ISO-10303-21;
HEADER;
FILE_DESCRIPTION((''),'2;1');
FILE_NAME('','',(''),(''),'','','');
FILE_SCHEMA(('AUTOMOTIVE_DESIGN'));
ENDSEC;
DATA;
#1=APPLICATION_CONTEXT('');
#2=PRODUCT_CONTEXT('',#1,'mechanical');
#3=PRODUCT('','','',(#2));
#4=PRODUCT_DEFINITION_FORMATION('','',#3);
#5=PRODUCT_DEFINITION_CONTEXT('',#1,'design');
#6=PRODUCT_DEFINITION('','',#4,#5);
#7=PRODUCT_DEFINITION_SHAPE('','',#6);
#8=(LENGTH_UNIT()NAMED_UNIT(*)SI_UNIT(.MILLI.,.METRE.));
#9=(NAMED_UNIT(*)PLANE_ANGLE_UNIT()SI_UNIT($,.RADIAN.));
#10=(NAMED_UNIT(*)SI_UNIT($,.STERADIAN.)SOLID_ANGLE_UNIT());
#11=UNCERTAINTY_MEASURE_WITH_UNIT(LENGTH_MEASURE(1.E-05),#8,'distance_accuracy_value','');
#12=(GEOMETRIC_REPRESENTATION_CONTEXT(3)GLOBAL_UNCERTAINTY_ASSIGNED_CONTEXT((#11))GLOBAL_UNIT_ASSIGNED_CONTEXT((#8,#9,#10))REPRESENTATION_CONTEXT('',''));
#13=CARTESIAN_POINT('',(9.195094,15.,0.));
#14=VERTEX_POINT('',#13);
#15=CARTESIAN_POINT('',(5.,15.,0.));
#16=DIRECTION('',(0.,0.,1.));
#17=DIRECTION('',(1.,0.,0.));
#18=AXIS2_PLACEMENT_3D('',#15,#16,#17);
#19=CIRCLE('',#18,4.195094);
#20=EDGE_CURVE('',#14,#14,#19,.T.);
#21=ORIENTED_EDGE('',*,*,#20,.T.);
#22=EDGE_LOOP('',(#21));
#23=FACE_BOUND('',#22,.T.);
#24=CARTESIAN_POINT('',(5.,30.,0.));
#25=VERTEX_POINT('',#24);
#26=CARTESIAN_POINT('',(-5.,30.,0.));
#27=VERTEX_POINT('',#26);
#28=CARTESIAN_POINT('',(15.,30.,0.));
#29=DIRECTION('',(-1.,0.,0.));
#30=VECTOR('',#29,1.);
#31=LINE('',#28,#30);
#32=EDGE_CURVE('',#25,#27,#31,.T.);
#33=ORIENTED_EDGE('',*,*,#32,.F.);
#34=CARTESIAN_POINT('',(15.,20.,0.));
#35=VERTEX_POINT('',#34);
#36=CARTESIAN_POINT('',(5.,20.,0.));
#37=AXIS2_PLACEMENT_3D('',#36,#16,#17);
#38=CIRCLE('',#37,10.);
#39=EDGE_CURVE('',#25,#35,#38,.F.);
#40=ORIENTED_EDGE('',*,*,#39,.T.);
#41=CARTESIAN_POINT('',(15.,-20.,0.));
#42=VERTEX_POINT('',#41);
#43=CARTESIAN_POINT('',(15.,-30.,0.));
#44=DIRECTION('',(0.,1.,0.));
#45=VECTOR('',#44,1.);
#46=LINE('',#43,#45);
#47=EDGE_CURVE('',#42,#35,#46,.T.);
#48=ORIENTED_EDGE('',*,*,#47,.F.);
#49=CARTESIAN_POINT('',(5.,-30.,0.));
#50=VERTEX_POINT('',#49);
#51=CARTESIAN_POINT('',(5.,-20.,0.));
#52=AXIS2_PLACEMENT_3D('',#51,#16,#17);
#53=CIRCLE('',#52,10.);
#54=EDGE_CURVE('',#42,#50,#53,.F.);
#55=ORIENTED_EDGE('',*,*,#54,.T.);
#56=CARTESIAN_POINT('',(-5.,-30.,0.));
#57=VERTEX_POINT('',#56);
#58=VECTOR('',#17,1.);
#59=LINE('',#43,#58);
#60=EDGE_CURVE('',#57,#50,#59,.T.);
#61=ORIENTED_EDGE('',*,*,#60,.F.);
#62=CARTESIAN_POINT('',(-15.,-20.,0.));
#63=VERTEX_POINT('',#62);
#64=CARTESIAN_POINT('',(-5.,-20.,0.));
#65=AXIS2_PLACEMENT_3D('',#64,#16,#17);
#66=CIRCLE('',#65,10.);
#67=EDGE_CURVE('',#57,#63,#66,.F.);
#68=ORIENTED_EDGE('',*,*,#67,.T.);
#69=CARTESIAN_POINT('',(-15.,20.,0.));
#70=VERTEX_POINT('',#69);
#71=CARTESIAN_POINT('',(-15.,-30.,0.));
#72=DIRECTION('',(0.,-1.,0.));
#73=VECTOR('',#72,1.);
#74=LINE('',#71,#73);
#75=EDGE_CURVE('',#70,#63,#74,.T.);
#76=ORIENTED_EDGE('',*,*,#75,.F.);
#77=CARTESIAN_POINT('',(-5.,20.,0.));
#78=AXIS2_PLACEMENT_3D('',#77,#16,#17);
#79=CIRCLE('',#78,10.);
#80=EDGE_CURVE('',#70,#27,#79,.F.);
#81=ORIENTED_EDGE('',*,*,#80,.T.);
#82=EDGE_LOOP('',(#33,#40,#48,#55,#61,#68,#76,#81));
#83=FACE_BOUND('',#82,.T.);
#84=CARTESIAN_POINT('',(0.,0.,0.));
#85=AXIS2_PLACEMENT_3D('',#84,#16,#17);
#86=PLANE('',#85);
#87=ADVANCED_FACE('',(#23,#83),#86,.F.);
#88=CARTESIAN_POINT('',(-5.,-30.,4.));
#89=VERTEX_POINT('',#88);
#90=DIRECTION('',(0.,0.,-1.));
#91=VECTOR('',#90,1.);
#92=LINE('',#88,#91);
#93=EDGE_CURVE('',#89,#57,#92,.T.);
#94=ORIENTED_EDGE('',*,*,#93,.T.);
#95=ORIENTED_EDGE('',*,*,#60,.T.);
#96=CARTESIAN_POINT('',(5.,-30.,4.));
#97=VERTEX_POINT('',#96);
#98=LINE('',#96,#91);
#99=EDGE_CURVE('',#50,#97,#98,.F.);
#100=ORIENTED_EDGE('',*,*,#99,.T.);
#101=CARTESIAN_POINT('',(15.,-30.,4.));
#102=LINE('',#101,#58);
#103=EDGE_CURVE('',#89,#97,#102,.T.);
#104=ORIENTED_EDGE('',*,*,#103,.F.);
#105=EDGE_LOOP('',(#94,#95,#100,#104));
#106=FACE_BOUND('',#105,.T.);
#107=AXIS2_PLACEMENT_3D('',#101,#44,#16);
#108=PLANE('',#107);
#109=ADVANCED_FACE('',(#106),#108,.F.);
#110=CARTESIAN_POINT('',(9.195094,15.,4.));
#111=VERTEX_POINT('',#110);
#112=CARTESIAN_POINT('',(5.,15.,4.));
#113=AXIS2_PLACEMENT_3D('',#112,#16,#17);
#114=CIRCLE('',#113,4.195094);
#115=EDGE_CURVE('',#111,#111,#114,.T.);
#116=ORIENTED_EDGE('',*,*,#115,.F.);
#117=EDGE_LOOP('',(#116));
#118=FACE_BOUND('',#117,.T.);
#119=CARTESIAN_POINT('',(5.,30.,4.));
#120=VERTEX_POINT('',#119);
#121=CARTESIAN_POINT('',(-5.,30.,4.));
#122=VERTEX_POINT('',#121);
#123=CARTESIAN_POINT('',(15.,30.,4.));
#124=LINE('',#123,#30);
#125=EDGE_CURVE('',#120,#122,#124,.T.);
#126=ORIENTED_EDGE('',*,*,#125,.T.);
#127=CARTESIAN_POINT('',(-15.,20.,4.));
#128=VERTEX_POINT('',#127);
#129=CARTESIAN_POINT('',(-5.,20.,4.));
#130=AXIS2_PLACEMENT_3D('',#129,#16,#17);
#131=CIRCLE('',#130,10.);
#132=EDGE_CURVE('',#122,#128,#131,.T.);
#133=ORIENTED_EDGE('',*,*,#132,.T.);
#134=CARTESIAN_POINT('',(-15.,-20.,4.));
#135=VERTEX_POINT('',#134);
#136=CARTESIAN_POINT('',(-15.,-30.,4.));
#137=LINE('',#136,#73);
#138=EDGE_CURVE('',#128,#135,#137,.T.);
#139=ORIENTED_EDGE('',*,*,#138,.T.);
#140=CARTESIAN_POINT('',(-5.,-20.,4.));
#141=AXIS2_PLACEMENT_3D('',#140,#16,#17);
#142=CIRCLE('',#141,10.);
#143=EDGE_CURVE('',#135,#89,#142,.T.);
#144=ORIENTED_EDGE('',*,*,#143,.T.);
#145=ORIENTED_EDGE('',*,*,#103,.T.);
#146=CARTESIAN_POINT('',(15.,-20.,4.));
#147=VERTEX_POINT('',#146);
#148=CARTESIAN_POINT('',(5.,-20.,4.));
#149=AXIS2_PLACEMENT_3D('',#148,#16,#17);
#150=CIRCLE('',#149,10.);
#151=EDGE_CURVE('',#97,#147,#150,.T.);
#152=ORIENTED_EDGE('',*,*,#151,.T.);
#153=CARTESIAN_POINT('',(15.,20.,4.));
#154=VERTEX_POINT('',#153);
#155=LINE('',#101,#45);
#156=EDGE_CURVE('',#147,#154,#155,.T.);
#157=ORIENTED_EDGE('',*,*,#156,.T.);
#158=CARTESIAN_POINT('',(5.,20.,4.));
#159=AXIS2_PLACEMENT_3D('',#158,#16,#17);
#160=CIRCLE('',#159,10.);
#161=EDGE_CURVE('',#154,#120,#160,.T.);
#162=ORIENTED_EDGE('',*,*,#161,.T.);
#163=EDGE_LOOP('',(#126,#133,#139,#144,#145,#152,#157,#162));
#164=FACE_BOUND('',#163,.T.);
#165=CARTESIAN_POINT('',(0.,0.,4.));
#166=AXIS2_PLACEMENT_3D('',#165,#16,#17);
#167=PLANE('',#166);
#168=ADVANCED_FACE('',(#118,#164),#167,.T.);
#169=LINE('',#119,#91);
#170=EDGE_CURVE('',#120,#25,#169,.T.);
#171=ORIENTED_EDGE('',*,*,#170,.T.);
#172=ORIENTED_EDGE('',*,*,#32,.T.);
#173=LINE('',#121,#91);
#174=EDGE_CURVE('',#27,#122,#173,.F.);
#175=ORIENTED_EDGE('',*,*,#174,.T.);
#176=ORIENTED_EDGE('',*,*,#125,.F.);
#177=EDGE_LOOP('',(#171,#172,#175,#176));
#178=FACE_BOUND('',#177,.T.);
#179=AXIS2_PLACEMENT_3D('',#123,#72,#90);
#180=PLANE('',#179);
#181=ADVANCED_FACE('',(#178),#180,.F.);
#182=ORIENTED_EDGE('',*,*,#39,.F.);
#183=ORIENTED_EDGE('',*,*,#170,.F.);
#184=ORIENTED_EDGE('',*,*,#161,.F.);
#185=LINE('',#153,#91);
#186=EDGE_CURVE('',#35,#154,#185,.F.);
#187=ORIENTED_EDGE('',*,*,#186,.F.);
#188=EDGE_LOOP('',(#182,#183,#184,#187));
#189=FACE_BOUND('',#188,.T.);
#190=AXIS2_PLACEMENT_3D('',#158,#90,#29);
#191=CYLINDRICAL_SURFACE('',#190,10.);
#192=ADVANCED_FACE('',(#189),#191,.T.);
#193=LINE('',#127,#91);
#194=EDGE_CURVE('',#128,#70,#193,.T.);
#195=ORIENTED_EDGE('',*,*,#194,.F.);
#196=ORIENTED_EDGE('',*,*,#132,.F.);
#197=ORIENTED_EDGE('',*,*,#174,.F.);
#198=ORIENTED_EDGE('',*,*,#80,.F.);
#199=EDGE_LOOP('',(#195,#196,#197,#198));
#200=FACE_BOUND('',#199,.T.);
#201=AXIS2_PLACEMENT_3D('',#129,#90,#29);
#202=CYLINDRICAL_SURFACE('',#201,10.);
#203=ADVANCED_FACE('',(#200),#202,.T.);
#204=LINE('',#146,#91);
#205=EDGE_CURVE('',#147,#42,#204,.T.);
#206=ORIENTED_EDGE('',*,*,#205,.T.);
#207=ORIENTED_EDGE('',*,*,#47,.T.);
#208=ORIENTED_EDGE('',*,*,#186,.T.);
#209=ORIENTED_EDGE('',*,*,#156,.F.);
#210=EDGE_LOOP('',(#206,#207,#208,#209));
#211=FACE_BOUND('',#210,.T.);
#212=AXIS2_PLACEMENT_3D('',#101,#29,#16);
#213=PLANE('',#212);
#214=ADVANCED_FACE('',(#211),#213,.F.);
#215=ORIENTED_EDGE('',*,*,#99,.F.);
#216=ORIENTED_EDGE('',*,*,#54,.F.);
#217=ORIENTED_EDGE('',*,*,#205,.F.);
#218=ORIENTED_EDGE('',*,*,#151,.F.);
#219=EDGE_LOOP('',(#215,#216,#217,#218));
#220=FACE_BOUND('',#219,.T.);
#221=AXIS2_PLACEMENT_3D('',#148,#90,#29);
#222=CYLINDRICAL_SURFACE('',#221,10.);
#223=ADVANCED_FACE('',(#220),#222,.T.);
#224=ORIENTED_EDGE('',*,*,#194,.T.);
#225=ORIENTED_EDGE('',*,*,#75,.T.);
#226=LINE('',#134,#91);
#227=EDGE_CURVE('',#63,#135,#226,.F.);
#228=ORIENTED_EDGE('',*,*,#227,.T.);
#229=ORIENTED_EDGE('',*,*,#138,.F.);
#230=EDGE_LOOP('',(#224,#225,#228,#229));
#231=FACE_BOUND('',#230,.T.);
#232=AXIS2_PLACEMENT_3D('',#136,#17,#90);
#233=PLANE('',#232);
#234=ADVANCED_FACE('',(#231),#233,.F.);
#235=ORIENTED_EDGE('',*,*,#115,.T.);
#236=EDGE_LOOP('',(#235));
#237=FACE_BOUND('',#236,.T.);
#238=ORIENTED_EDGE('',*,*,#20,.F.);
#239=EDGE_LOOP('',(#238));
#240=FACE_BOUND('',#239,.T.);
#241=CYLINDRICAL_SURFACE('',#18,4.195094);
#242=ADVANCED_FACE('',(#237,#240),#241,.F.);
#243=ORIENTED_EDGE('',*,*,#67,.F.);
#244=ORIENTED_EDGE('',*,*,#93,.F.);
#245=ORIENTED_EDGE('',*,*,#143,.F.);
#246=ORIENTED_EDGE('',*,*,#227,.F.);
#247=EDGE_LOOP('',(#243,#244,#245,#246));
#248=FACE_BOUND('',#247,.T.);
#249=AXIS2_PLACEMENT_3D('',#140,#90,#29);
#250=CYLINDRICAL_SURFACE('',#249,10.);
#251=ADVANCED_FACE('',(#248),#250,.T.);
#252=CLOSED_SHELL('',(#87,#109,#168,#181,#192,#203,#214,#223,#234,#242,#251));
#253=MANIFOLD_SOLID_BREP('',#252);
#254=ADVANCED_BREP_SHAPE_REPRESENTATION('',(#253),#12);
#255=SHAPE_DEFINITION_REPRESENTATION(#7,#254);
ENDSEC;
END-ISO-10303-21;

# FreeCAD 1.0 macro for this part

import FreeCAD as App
import Part
import Sketcher
from FreeCAD import Vector


def edges_at(feature, points):
    """Names of the edges that pass closest to the given points."""
    edges = feature.Shape.Edges
    near = lambda p: min(range(len(edges)), key=lambda i: edges[i].distToShape(Part.Vertex(*p))[0])
    return sorted({f"Edge{near(p) + 1}" for p in points})


def add_polygon(sketch, points):
    """Adds a closed chain of lines whose ends are joined by coincident constraints."""
    first, n = sketch.GeometryCount, len(points)
    for a, b in zip(points, points[1:] + points[:1]):
        sketch.addGeometry(Part.LineSegment(App.Vector(*a, 0), App.Vector(*b, 0)), False)
    for i in range(n):
        sketch.addConstraint(Sketcher.Constraint("Coincident", first + i, 2, first + (i + 1) % n, 1))

doc = App.newDocument("Part")
body = doc.addObject("PartDesign::Body", "Body")

# Sketch on XY plane
sketch1 = body.newObject("Sketcher::SketchObject", "Sketch")
sketch1.AttachmentSupport = (doc.getObject("XY_Plane"), [""])
sketch1.MapMode = "FlatFace"
add_polygon(sketch1, [(-15, 30), (-15, -30), (15, -30), (15, 30)])  # lines 0-3
sketch1.addConstraint(Sketcher.Constraint("Vertical", 0))
sketch1.addConstraint(Sketcher.Constraint("Horizontal", 1))
sketch1.addConstraint(Sketcher.Constraint("Vertical", 2))
sketch1.addConstraint(Sketcher.Constraint("Horizontal", 3))
sketch1.addConstraint(Sketcher.Constraint("Symmetric", 0, 2, 2, 2, -1, 1))
sketch1.addConstraint(Sketcher.Constraint("DistanceX", 1, 1, 1, 2, 30.0))
sketch1.addConstraint(Sketcher.Constraint("DistanceY", 0, 2, 0, 1, 60.0))
pad1 = body.newObject("PartDesign::Pad", "Pad")
pad1.Profile = sketch1
pad1.Length = 4

# Sketch on XY plane
sketch2 = body.newObject("Sketcher::SketchObject", "Sketch001")
sketch2.AttachmentSupport = (doc.getObject("XY_Plane"), [""])
sketch2.MapMode = "FlatFace"
sketch2.AttachmentOffset = App.Placement(Vector(0, 0, 4), App.Rotation())
sketch2.addGeometry(Part.Circle(Vector(5, 15, 0), Vector(0, 0, 1), 4.2), False)
sketch2.addConstraint(Sketcher.Constraint("DistanceX", -1, 1, 0, 3, 5.0))
sketch2.addConstraint(Sketcher.Constraint("DistanceY", -1, 1, 0, 3, 15.0))
sketch2.addConstraint(Sketcher.Constraint("Diameter", 0, 8.390187))
pocket1 = body.newObject("PartDesign::Pocket", "Pocket")
pocket1.Profile = sketch2
pocket1.Type = "ThroughAll"
doc.recompute()

fillet = body.newObject("PartDesign::Fillet", "Fillet")
fillet.Base = (pocket1, edges_at(pocket1, [
    (-15, 30, 2),
    (15, 30, 2),
    (15, -30, 2),
    (-15, -30, 2),
]))
fillet.Radius = 10

doc.recompute()
